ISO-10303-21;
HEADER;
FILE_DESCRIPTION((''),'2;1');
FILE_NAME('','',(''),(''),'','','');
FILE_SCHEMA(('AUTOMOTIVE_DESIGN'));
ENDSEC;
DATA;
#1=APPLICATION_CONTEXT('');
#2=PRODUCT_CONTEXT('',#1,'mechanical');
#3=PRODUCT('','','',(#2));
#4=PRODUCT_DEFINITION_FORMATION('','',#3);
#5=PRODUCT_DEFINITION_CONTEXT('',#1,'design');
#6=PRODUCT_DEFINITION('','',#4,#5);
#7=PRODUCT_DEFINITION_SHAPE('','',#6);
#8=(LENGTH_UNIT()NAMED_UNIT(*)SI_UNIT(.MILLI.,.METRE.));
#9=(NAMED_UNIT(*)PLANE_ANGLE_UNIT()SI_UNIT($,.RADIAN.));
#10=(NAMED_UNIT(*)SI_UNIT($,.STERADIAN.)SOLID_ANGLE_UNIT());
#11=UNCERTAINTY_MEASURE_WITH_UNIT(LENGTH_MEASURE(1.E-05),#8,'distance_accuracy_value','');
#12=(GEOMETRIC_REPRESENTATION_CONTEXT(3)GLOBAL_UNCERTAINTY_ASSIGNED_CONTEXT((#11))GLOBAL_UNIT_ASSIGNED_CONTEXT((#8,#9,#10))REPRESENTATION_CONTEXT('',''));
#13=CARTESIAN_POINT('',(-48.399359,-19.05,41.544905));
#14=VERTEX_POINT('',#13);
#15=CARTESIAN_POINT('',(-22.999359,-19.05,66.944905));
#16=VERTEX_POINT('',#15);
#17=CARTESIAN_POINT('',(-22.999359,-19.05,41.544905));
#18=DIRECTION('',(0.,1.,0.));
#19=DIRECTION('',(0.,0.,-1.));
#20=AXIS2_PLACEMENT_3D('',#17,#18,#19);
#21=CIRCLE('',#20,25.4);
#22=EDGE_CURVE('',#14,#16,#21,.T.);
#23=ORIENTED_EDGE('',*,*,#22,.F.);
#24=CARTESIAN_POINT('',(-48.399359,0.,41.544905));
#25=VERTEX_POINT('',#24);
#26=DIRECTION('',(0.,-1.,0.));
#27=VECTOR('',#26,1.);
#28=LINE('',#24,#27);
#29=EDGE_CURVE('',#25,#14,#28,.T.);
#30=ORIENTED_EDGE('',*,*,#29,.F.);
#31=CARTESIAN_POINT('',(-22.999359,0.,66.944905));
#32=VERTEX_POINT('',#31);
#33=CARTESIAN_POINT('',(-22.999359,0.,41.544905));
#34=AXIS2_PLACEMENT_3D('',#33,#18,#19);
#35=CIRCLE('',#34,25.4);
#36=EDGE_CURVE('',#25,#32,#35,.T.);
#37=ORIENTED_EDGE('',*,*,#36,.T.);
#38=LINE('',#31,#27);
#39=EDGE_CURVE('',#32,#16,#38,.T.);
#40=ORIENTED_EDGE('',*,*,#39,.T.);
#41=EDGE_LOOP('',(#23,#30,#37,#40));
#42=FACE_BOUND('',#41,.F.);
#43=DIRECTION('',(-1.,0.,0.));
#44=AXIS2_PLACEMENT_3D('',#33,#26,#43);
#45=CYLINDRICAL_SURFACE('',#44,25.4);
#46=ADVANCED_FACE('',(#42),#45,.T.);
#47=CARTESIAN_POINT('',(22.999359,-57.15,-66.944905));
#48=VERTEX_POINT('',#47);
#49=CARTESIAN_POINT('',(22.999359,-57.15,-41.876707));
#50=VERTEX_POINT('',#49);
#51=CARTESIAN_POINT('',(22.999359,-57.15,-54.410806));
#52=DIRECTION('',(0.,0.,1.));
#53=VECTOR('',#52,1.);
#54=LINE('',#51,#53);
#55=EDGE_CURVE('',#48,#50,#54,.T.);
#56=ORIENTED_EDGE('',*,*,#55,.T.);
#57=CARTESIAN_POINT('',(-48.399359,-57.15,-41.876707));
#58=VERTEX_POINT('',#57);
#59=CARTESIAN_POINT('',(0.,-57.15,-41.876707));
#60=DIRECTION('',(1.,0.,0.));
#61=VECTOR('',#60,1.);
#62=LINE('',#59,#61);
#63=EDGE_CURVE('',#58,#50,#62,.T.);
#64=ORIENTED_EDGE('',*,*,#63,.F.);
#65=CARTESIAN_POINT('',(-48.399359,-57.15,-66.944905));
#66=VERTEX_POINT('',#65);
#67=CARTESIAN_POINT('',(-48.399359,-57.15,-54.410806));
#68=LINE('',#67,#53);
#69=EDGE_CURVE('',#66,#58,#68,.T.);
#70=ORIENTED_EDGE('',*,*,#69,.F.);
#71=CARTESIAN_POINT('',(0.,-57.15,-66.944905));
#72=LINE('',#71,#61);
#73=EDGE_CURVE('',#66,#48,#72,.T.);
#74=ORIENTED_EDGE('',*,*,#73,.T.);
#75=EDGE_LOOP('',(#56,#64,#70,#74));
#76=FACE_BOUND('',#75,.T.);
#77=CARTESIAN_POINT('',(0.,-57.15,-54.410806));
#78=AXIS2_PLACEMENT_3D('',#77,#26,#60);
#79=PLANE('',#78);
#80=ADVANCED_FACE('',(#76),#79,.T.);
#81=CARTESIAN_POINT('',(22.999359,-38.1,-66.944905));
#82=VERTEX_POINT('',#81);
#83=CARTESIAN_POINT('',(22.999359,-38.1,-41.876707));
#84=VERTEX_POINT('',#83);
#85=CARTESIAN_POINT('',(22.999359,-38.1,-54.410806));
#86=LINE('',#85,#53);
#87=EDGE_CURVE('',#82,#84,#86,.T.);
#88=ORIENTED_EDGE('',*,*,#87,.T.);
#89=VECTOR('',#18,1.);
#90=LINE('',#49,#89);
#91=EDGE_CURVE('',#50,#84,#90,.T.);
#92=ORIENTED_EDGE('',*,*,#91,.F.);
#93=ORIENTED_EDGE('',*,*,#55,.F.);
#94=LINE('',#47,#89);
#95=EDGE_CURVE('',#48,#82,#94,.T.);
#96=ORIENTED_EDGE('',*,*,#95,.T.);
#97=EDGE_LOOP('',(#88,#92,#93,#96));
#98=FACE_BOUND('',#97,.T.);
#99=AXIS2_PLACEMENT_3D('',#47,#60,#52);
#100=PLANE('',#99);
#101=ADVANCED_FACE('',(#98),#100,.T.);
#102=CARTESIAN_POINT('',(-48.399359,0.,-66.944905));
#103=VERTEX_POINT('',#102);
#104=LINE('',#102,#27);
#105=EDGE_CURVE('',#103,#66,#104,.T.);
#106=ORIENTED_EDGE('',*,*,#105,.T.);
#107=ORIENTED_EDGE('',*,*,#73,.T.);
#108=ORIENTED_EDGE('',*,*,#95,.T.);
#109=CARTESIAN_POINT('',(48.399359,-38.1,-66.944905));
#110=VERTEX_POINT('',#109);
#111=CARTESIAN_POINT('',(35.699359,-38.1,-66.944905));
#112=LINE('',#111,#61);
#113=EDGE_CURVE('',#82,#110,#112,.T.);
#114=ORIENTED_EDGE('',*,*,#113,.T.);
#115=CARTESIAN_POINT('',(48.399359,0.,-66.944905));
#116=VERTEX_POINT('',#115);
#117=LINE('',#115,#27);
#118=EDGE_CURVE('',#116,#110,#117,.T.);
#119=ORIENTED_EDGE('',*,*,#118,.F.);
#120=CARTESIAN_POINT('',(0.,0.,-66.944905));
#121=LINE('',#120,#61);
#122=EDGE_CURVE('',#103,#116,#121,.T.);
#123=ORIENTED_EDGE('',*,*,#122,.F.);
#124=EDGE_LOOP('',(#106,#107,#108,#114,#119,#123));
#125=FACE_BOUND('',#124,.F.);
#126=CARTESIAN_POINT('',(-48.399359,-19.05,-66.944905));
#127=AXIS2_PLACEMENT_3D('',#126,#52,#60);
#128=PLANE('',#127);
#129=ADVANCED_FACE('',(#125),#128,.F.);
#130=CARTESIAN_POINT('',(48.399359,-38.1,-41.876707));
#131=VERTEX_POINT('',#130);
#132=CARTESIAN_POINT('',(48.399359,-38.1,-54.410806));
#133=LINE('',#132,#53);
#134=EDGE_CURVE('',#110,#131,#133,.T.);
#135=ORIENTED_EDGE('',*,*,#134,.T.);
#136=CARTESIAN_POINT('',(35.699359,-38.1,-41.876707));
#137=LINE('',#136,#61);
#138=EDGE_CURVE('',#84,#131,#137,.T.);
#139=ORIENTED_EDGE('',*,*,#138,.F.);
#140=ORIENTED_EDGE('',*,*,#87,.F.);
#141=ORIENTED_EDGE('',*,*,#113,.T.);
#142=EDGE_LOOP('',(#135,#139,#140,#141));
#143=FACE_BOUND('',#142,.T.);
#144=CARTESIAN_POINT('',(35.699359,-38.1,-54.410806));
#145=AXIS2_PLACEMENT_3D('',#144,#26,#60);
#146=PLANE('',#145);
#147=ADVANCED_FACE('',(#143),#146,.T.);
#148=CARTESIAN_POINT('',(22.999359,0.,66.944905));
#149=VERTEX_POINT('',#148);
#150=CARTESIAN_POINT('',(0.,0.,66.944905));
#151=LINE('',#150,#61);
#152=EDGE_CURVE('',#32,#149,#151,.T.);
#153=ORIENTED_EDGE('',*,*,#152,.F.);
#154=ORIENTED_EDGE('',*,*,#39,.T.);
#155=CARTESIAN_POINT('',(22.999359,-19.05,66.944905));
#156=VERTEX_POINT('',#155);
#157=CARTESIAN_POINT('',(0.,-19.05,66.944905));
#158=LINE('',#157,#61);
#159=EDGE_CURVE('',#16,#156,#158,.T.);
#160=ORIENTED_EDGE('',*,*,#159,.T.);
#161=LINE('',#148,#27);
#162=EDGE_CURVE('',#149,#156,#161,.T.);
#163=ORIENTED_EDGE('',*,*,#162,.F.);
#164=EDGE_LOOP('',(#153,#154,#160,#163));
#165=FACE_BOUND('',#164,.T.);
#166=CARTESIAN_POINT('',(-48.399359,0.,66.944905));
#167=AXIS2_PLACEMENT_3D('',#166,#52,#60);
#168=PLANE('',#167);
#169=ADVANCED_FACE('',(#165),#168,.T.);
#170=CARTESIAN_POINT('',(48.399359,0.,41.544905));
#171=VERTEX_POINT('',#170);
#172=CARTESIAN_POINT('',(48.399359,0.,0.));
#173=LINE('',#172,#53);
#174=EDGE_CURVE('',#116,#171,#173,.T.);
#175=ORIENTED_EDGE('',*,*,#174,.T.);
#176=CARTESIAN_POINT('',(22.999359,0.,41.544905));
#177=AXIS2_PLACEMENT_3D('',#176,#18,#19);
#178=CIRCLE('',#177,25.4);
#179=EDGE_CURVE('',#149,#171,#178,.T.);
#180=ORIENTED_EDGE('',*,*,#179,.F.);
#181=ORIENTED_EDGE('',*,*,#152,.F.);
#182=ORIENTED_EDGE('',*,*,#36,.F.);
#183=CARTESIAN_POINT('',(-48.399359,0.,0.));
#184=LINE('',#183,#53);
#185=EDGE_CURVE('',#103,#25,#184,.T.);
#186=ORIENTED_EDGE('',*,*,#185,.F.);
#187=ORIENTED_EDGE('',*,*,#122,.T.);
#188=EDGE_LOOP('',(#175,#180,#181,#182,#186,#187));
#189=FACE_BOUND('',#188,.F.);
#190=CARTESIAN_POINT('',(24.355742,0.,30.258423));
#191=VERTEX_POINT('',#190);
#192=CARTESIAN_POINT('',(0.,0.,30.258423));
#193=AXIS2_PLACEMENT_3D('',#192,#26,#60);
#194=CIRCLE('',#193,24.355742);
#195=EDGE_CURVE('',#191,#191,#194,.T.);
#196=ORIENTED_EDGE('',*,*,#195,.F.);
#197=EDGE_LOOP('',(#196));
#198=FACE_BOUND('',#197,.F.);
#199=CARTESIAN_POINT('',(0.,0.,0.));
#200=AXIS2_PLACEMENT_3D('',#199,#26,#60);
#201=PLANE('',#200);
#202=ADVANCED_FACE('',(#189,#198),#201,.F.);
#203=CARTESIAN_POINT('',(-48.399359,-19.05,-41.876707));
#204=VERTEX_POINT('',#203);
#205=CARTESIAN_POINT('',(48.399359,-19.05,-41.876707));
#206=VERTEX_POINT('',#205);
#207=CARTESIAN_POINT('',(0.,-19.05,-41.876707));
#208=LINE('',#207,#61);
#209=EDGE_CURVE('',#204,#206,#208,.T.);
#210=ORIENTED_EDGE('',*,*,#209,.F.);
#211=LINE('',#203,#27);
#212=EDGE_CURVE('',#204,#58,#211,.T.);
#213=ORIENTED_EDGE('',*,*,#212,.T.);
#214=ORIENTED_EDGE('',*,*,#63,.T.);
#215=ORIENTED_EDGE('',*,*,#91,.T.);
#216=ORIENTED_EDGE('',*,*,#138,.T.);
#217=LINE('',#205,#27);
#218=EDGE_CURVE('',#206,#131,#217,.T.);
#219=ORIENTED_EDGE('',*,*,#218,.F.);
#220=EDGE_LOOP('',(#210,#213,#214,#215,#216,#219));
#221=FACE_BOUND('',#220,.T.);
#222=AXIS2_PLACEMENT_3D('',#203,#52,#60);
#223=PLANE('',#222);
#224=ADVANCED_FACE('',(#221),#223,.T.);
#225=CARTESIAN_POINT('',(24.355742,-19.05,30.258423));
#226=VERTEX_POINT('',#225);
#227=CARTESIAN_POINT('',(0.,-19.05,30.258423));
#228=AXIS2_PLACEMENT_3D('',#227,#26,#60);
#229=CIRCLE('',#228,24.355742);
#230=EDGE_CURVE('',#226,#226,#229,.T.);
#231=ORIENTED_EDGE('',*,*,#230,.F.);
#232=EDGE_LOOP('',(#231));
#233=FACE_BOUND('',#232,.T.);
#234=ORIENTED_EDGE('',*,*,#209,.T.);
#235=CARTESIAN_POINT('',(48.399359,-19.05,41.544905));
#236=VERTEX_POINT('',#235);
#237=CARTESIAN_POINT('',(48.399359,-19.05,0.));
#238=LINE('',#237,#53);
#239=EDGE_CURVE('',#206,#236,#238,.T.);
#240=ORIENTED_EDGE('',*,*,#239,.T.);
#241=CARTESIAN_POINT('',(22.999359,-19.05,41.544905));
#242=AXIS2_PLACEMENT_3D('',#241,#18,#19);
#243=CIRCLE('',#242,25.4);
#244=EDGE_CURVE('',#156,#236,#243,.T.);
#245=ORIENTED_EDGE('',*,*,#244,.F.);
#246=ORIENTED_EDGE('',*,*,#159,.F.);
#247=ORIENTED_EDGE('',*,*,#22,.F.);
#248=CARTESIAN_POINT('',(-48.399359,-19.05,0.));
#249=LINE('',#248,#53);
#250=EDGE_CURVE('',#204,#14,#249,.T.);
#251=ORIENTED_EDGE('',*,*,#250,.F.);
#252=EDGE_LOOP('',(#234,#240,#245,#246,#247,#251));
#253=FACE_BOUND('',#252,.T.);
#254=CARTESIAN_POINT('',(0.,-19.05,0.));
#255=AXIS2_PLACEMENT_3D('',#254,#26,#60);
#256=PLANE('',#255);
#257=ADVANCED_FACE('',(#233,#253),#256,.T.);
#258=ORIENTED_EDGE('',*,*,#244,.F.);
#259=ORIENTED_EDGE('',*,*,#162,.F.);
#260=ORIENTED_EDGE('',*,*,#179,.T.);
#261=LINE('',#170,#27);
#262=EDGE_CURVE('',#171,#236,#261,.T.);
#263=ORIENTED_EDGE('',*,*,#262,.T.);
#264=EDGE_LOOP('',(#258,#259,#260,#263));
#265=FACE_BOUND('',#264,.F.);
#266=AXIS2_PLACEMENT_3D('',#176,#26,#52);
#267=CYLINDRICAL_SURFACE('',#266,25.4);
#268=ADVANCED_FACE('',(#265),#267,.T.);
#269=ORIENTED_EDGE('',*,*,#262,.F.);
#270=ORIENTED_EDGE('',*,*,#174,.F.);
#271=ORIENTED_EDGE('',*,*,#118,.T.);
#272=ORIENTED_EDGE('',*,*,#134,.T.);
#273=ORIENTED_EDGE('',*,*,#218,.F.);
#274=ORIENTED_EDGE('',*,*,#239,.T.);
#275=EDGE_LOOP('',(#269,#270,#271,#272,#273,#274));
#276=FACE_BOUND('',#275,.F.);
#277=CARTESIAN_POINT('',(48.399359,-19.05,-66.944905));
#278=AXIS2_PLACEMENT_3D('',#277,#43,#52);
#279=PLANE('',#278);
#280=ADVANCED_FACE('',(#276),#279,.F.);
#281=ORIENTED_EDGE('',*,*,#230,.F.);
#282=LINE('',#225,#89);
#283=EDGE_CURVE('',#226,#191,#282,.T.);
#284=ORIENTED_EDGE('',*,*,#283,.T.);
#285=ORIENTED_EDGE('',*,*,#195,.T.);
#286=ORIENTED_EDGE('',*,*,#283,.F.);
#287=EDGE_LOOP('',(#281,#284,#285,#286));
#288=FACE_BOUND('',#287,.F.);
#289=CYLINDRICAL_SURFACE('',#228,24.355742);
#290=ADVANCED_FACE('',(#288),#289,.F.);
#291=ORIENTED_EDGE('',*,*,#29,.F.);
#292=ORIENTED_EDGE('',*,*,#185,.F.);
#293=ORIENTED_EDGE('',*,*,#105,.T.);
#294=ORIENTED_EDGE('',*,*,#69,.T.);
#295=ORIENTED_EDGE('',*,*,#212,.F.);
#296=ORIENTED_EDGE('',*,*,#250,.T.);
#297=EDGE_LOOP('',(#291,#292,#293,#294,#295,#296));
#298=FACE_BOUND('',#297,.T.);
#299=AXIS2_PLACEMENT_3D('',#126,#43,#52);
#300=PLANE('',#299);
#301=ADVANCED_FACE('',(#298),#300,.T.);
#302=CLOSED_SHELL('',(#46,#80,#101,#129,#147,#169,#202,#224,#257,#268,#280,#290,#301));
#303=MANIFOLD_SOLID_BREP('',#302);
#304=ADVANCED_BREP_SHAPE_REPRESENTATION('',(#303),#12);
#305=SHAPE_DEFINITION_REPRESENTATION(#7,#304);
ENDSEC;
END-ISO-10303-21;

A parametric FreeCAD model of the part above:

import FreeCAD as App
import Part
import Sketcher
Q = App.Units.Quantity


def edges_at(feature, points):
    """Names of the edges that pass closest to the given points."""
    edges = feature.Shape.Edges
    near = lambda p: min(range(len(edges)), key=lambda i: edges[i].distToShape(Part.Vertex(*p))[0])
    return sorted({f"Edge{near(p) + 1}" for p in points})

doc = App.newDocument("Part")
body = doc.addObject("PartDesign::Body", "Body")

# Sketch on XZ plane
sketch1 = body.newObject("Sketcher::SketchObject", "Sketch")
sketch1.AttachmentSupport = (doc.getObject("XZ_Plane"), [""])
sketch1.MapMode = "FlatFace"
sketch1.addGeometry([
    Part.LineSegment(App.Vector(-48, 67, 0), App.Vector(-48, -67, 0)),
    Part.LineSegment(App.Vector(-48, -67, 0), App.Vector(48, -67, 0)),
    Part.LineSegment(App.Vector(48, -67, 0), App.Vector(48, 67, 0)),
    Part.LineSegment(App.Vector(48, 67, 0), App.Vector(-48, 67, 0)),
], False)
sketch1.addConstraint([
    Sketcher.Constraint("Coincident", 0, 2, 1, 1),
    Sketcher.Constraint("Coincident", 1, 2, 2, 1),
    Sketcher.Constraint("Coincident", 2, 2, 3, 1),
    Sketcher.Constraint("Coincident", 3, 2, 0, 1),
    Sketcher.Constraint("Vertical", 0),
    Sketcher.Constraint("Horizontal", 1),
    Sketcher.Constraint("Vertical", 2),
    Sketcher.Constraint("Horizontal", 3),
    Sketcher.Constraint("Symmetric", 0, 2, 2, 2, -1, 1),
    Sketcher.Constraint("DistanceY", 0, 2, 0, 1, Q("133.88981 mm")),
    Sketcher.Constraint("DistanceX", 1, 1, 1, 2, Q("96.798718 mm")),
])
pad1 = body.newObject("PartDesign::Pad", "Pad")
pad1.Profile = sketch1
pad1.Length = Q("0.75 in")

# Sketch on XZ plane
sketch2 = body.newObject("Sketcher::SketchObject", "Sketch001")
sketch2.AttachmentSupport = (doc.getObject("XZ_Plane"), [""])
sketch2.MapMode = "FlatFace"
sketch2.AttachmentOffset = App.Placement(App.Vector(0, 0, 0.75 * 25.4), App.Rotation())
sketch2.addGeometry([
    Part.LineSegment(App.Vector(-48, -42, 0), App.Vector(-48, -67, 0)),
    Part.LineSegment(App.Vector(-48, -67, 0), App.Vector(48, -67, 0)),
    Part.LineSegment(App.Vector(48, -67, 0), App.Vector(48, -42, 0)),
    Part.LineSegment(App.Vector(48, -42, 0), App.Vector(-48, -42, 0)),
], False)
sketch2.addConstraint([
    Sketcher.Constraint("Coincident", 0, 2, 1, 1),
    Sketcher.Constraint("Coincident", 1, 2, 2, 1),
    Sketcher.Constraint("Coincident", 2, 2, 3, 1),
    Sketcher.Constraint("Coincident", 3, 2, 0, 1),
    Sketcher.Constraint("Vertical", 0),
    Sketcher.Constraint("Horizontal", 1),
    Sketcher.Constraint("Vertical", 2),
    Sketcher.Constraint("Horizontal", 3),
    Sketcher.Constraint("DistanceY", 0, 2, 0, 1, Q("25.068198 mm")),
    Sketcher.Constraint("DistanceX", 1, 1, 1, 2, Q("96.798718 mm")),
    Sketcher.Constraint("DistanceX", 0, 2, -1, 1, Q("48.399359 mm")),
    Sketcher.Constraint("DistanceY", 0, 2, -1, 1, Q("66.944905 mm")),
])
pad2 = body.newObject("PartDesign::Pad", "Pad001")
pad2.Profile = sketch2
pad2.Length = Q("1.5 in")

# Sketch on XZ plane
sketch3 = body.newObject("Sketcher::SketchObject", "Sketch002")
sketch3.AttachmentSupport = (doc.getObject("XZ_Plane"), [""])
sketch3.MapMode = "FlatFace"
sketch3.AttachmentOffset = App.Placement(App.Vector(0, 0, 2.25 * 25.4), App.Rotation())
sketch3.addGeometry([
    Part.LineSegment(App.Vector(23, -42, 0), App.Vector(23, -67, 0)),
    Part.LineSegment(App.Vector(23, -67, 0), App.Vector(48, -67, 0)),
    Part.LineSegment(App.Vector(48, -67, 0), App.Vector(48, -42, 0)),
    Part.LineSegment(App.Vector(48, -42, 0), App.Vector(23, -42, 0)),
], False)
sketch3.addConstraint([
    Sketcher.Constraint("Coincident", 0, 2, 1, 1),
    Sketcher.Constraint("Coincident", 1, 2, 2, 1),
    Sketcher.Constraint("Coincident", 2, 2, 3, 1),
    Sketcher.Constraint("Coincident", 3, 2, 0, 1),
    Sketcher.Constraint("Vertical", 0),
    Sketcher.Constraint("Horizontal", 1),
    Sketcher.Constraint("Vertical", 2),
    Sketcher.Constraint("Horizontal", 3),
    Sketcher.Constraint("DistanceX", 1, 1, 1, 2, Q("1 in")),
    Sketcher.Constraint("DistanceY", 0, 2, 0, 1, Q("25.068198 mm")),
    Sketcher.Constraint("DistanceX", -1, 1, 0, 2, Q("22.999359 mm")),
    Sketcher.Constraint("DistanceY", 0, 2, -1, 1, Q("66.944905 mm")),
])
pocket1 = body.newObject("PartDesign::Pocket", "Pocket")
pocket1.Profile = sketch3
pocket1.Length = Q("0.75 in")

# Sketch on XZ plane
sketch4 = body.newObject("Sketcher::SketchObject", "Sketch003")
sketch4.AttachmentSupport = (doc.getObject("XZ_Plane"), [""])
sketch4.MapMode = "FlatFace"
sketch4.AttachmentOffset = App.Placement(App.Vector(0, 0, 0.75 * 25.4), App.Rotation())
sketch4.addGeometry(Part.Circle(App.Vector(0, 30, 0), App.Vector(0, 0, 1), 24), False)
sketch4.addConstraint([
    Sketcher.Constraint("PointOnObject", 0, 3, -2),
    Sketcher.Constraint("Diameter", 0, Q("48.711484 mm")),
    Sketcher.Constraint("DistanceY", -1, 1, 0, 3, Q("30.258423 mm")),
])
pocket2 = body.newObject("PartDesign::Pocket", "Pocket001")
pocket2.Profile = sketch4
pocket2.Type = "ThroughAll"
doc.recompute()

fillet = body.newObject("PartDesign::Fillet", "Fillet")
fillet.Base = (pocket2, edges_at(pocket2, [(-48.399, -9.525, 66.945)]))
fillet.Radius = Q("1 in")
doc.recompute()

fillet2 = body.newObject("PartDesign::Fillet", "Fillet001")
fillet2.Base = (fillet, edges_at(fillet, [(48.399, -9.525, 66.945)]))
fillet2.Radius = Q("1 in")

doc.recompute()
